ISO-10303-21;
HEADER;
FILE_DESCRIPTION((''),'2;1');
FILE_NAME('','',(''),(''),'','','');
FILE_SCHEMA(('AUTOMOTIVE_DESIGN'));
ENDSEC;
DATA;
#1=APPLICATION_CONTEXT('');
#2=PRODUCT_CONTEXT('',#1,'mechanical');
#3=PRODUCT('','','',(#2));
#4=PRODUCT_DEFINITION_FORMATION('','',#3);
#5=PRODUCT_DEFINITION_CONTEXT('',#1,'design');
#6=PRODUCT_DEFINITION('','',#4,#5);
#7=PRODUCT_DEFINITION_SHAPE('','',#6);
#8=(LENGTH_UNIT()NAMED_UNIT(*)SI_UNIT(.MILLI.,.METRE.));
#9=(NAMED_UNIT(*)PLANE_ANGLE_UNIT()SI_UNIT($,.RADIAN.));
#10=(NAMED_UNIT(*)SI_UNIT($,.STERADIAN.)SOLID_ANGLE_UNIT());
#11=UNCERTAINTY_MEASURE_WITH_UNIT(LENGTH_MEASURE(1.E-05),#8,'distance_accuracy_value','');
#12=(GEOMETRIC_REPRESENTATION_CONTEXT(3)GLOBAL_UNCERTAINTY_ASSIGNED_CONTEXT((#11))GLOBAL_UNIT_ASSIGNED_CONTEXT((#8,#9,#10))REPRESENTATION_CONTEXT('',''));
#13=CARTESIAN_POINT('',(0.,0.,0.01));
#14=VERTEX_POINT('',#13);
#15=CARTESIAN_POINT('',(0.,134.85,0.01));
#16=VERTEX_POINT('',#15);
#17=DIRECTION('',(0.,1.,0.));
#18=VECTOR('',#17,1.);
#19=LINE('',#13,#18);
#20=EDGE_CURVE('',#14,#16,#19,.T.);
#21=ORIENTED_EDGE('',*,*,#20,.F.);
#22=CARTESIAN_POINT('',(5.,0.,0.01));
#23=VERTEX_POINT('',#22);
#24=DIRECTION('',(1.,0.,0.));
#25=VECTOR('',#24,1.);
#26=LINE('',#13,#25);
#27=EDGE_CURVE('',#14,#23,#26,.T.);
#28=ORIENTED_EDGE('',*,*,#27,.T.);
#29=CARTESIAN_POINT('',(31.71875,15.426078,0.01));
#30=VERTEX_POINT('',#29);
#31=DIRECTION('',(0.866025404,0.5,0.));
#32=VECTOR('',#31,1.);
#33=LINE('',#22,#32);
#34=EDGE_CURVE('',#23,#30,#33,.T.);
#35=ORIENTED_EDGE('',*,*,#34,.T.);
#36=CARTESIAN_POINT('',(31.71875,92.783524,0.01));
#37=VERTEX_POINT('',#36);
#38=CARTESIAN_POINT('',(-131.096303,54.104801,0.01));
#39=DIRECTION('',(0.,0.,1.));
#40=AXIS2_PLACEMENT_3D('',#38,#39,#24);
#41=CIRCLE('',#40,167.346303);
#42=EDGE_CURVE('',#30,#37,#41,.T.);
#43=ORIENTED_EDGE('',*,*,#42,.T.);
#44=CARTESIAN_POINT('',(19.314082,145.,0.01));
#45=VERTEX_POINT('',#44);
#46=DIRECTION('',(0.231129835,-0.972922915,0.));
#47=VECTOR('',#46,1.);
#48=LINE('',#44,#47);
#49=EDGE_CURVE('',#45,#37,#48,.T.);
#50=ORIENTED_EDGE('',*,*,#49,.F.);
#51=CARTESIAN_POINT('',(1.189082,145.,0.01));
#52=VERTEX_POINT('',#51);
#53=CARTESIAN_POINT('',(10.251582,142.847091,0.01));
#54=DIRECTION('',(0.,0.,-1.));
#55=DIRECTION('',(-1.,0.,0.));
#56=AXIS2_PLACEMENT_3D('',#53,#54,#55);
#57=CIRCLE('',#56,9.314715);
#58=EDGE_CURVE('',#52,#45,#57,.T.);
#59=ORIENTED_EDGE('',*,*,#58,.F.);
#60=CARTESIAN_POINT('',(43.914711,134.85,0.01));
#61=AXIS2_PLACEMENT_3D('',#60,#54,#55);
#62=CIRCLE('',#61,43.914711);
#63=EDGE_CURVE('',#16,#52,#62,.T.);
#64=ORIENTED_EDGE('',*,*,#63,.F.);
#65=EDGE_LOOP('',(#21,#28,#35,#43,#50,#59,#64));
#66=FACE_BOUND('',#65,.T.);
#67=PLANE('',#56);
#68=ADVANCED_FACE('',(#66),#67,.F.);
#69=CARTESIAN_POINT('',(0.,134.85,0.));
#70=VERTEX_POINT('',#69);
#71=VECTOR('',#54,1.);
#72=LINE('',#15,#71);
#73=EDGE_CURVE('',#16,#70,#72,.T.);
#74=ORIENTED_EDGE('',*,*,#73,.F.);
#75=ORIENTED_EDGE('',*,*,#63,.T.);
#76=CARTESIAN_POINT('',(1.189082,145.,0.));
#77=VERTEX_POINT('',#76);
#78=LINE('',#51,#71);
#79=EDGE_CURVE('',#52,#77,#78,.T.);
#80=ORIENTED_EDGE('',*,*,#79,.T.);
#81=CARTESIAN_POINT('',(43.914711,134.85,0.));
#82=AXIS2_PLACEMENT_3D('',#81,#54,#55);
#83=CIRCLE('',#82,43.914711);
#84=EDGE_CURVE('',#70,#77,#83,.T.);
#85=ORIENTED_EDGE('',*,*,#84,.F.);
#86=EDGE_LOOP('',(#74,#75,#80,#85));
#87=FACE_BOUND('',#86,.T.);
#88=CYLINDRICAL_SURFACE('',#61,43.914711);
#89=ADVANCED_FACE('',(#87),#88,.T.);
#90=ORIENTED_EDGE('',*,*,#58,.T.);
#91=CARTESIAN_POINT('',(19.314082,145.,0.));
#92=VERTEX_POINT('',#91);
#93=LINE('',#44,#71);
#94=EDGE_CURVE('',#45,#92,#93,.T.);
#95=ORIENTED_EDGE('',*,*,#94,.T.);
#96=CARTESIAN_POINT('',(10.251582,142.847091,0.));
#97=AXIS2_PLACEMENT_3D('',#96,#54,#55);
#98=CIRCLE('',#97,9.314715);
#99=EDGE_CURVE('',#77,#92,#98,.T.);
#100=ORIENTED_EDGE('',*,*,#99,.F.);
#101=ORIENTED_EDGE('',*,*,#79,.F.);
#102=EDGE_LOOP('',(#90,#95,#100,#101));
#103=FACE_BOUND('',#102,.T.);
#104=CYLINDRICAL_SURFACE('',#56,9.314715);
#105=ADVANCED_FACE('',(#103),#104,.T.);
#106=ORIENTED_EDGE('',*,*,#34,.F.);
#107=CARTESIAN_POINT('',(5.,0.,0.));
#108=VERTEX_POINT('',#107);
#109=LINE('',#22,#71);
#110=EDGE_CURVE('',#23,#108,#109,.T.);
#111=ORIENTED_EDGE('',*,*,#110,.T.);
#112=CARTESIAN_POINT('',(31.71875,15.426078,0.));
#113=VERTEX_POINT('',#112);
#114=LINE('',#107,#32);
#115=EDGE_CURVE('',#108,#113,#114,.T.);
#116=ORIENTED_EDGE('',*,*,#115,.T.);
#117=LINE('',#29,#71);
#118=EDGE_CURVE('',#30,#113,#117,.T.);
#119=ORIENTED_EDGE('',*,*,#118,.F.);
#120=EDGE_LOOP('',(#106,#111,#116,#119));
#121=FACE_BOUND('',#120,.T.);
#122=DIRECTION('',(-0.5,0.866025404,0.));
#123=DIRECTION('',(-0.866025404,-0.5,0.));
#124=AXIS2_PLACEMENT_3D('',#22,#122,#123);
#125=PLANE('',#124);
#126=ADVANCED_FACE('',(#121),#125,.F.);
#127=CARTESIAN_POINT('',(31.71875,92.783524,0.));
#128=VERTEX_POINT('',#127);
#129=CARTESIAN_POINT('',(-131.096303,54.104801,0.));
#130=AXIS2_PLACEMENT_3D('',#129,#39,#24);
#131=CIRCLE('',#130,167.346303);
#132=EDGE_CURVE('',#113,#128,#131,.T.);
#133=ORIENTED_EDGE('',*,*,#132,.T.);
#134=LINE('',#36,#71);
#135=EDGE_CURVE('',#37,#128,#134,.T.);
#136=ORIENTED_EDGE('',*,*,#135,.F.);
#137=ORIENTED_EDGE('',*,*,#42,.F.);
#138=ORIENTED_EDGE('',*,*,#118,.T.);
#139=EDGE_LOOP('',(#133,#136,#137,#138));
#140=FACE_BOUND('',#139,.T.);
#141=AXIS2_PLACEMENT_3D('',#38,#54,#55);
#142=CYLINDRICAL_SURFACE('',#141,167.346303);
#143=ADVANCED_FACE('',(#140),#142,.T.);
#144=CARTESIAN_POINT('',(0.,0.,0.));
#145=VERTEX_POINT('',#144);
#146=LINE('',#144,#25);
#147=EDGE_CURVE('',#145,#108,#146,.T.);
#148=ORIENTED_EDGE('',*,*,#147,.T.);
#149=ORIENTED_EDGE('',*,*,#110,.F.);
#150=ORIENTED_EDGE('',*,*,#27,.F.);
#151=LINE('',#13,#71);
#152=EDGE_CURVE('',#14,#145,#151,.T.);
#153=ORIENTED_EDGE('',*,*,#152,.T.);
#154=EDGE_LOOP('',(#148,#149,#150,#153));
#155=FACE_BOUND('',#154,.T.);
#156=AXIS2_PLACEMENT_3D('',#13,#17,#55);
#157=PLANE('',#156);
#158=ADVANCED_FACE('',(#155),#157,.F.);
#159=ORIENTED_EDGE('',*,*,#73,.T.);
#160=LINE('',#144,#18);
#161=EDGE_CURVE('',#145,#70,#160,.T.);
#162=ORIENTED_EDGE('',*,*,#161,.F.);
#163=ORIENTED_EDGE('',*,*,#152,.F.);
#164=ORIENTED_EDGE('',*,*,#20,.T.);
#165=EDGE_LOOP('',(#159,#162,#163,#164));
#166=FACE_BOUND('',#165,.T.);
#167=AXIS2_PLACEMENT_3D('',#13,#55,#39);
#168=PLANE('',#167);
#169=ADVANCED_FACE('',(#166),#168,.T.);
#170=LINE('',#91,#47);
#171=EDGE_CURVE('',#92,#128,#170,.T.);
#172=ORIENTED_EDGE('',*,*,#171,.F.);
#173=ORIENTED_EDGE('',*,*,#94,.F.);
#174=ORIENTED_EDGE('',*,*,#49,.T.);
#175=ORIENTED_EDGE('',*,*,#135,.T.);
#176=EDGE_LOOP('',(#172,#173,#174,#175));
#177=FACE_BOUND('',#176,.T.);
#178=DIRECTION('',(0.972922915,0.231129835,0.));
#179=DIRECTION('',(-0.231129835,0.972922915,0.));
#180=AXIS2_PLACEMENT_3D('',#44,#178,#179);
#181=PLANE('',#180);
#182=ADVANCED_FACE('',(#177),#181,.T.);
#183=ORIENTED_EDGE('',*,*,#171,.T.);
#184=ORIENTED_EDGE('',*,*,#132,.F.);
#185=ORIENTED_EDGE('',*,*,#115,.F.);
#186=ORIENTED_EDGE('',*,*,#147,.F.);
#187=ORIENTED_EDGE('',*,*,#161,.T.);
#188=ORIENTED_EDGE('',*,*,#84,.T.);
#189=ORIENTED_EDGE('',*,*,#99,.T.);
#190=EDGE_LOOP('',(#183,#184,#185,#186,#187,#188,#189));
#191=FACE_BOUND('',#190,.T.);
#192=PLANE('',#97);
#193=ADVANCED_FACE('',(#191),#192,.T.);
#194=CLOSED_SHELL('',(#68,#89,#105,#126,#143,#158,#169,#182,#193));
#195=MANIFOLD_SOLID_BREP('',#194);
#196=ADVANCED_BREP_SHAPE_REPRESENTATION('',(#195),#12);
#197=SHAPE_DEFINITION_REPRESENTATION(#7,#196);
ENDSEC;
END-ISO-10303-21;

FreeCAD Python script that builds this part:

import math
import FreeCAD as App
import Part
import Sketcher

V = App.Vector
Q = App.Units.Quantity

doc = App.newDocument("Part")
body = doc.addObject("PartDesign::Body", "Body")

sketch1 = body.newObject("Sketcher::SketchObject", "Sketch")
sketch1.AttachmentSupport = (doc.getObject("XY_Plane"), [""])
sketch1.MapMode = "FlatFace"
sketch1.addGeometry([
    Part.LineSegment(V(0, 134.85, 0), V(0, 0, 0)),
    Part.LineSegment(V(0, 0, 0), V(5, 0, 0)),
    Part.LineSegment(V(5, 0, 0), V(31.71875, 15.426078, 0)),
    Part.ArcOfCircle(Part.Circle(V(-131.096303, 54.104801, 0), V(0, 0, 1), 167.346303), math.radians(-13.363599), math.radians(13.363599)),
    Part.LineSegment(V(31.71875, 92.783524, 0), V(19.314082, 145, 0)),
    Part.ArcOfCircle(Part.Circle(V(10.251582, 142.847091, 0), V(0, 0, 1), 9.314715), math.radians(13.363599), math.radians(166.636401)),
    Part.ArcOfCircle(Part.Circle(V(43.914711, 134.85, 0), V(0, 0, 1), 43.914711), math.radians(166.636401), math.radians(180)),
], False)
sketch1.addConstraint([
    Sketcher.Constraint("Coincident", 0, 2, 1, 1),
    Sketcher.Constraint("Coincident", 1, 2, 2, 1),
    Sketcher.Constraint("Coincident", 2, 2, 3, 1),
    Sketcher.Constraint("Tangent", 3, 2, 4, 1),
    Sketcher.Constraint("Tangent", 4, 2, 5, 1),
    Sketcher.Constraint("Tangent", 5, 2, 6, 1),
    Sketcher.Constraint("Tangent", 6, 2, 0, 1),
    Sketcher.Constraint("Vertical", 0),
    Sketcher.Constraint("Horizontal", 1),
    Sketcher.Constraint("Coincident", 0, 2, -1, 1),
    Sketcher.Constraint("Horizontal", 4, 2, 5, 2),
    Sketcher.Constraint("Vertical", 2, 2, 3, 2),
    Sketcher.Constraint("DistanceX", 1, 1, 1, 2, Q("5 mm")),
    Sketcher.Constraint("Angle", 2, Q("30 deg")),
    Sketcher.Constraint("DistanceY", -1, 1, 4, 2, Q("145 mm")),
    Sketcher.Constraint("DistanceY", 0, 2, 0, 1, Q("134.85 mm")),
    Sketcher.Constraint("Radius", 6, Q("43.914711 mm")),
    Sketcher.Constraint("Radius", 3, Q("167.346303 mm")),
    Sketcher.Constraint("Radius", 5, Q("9.314715 mm")),
])
pad1 = body.newObject("PartDesign::Pad", "Pad")
pad1.Profile = sketch1
pad1.Length = 0.01

doc.recompute()
